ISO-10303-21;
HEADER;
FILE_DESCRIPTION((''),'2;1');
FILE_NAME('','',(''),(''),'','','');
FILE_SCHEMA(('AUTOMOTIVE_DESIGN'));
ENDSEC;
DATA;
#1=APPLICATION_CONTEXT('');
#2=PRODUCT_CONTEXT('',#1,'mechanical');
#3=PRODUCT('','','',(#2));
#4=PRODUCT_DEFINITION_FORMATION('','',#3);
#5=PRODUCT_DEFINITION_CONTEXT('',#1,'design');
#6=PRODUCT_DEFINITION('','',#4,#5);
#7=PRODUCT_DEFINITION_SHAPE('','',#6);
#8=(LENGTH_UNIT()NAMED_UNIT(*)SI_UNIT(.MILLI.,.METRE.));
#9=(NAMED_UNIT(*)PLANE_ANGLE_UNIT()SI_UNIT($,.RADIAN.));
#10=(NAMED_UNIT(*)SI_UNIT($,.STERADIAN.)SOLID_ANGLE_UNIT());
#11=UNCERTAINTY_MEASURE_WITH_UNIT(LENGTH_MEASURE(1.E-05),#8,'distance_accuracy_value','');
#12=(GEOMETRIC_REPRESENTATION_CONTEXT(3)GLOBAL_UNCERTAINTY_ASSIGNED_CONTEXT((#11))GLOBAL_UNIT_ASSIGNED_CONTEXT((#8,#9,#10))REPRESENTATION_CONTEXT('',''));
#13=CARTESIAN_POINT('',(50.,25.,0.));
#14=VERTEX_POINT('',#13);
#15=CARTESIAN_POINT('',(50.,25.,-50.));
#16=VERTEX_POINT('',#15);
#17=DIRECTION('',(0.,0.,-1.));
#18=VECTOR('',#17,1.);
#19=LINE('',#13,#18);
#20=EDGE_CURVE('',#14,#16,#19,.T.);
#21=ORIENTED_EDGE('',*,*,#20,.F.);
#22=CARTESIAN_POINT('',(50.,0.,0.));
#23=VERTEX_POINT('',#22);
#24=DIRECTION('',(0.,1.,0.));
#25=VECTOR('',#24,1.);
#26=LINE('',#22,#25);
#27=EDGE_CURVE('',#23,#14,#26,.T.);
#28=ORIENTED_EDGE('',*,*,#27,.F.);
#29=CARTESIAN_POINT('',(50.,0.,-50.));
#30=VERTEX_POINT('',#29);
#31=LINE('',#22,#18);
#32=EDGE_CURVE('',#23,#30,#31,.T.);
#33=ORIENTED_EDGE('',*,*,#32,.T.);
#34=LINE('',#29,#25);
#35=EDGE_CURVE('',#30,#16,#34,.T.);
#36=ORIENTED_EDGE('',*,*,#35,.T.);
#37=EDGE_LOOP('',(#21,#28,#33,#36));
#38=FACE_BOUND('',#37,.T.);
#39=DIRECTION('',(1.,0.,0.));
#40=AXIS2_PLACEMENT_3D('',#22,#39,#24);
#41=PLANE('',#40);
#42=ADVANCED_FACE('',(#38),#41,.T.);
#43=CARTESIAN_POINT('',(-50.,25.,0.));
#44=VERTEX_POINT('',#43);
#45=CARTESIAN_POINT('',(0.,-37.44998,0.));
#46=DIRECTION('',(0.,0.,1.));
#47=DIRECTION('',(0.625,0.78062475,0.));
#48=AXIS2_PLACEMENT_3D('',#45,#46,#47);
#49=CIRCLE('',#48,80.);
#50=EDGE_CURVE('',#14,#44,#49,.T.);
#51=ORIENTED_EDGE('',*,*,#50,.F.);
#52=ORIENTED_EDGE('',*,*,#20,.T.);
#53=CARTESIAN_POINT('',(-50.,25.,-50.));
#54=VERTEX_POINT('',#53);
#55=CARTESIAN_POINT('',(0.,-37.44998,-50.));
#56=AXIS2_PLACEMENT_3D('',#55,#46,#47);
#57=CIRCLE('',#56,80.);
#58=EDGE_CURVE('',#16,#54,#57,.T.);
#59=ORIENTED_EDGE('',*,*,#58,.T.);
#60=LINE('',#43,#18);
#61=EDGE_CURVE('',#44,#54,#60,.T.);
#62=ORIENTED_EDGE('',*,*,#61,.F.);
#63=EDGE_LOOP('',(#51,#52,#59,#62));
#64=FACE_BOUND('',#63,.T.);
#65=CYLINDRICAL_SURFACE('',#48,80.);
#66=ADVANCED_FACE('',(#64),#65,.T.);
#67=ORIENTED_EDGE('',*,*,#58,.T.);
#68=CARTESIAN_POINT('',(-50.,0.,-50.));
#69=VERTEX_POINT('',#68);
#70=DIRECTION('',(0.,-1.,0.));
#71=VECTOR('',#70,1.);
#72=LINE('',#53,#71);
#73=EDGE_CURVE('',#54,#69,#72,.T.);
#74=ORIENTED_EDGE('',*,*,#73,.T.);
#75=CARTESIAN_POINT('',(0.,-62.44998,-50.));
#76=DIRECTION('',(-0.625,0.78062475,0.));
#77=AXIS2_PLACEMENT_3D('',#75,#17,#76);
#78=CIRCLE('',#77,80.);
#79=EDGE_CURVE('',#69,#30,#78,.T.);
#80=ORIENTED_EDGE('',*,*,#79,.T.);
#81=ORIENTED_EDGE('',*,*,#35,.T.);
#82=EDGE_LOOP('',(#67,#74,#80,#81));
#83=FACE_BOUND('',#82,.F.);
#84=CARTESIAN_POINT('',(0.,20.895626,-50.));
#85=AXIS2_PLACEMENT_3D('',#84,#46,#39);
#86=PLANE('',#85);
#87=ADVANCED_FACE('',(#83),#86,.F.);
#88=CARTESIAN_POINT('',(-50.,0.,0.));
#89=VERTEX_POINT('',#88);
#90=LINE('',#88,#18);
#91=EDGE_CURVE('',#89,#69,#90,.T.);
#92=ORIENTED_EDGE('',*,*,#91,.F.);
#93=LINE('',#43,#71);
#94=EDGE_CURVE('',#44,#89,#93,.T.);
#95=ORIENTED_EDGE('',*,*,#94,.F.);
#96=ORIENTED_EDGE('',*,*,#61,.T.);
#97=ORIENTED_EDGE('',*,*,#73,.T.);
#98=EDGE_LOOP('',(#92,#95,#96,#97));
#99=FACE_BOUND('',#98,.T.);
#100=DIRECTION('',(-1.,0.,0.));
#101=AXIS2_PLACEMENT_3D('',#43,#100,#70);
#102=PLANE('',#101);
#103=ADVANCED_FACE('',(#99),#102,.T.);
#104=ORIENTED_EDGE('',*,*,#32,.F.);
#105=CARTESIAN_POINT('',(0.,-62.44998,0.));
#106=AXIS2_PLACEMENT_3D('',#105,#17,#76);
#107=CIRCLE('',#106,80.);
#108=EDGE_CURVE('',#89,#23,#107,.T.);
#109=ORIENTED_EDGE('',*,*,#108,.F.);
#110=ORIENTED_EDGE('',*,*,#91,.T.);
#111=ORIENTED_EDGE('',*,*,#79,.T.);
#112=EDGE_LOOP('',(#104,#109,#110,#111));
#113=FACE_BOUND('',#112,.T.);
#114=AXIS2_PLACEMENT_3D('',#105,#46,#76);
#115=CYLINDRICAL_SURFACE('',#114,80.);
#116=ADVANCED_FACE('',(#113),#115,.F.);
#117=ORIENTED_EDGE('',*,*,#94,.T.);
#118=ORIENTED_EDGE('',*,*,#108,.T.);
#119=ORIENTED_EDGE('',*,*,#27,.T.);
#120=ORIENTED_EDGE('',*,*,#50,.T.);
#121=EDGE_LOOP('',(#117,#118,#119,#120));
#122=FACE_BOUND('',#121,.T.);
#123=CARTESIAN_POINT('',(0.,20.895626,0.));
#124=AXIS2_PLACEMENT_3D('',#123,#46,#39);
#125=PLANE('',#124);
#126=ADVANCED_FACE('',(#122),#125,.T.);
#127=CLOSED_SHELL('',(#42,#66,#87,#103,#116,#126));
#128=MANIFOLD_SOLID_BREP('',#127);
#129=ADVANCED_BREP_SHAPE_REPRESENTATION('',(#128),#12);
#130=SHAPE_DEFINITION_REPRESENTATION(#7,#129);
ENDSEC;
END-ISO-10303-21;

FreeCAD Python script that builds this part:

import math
import FreeCAD as App
import Part
import Sketcher
Q = App.Units.Quantity

doc = App.newDocument("Part")
body = doc.addObject("PartDesign::Body", "Body")

sketch1 = doc.addObject("Sketcher::SketchObject", "Sketch")
body.addObject(sketch1)
sketch1.AttachmentSupport = (doc.XY_Plane, [""])
sketch1.MapMode = "FlatFace"
sketch1.addGeometry(Part.ArcOfCircle(Part.Circle(App.Vector(0, -62, 0), App.Vector(0, 0, 1), 80), math.radians(51), math.radians(129)), False)
sketch1.addGeometry(Part.LineSegment(App.Vector(50, 0, 0), App.Vector(50, 25, 0)), False)
sketch1.addGeometry(Part.ArcOfCircle(Part.Circle(App.Vector(0, -37, 0), App.Vector(0, 0, 1), 80), math.radians(51), math.radians(129)), False)
sketch1.addGeometry(Part.LineSegment(App.Vector(-50, 25, 0), App.Vector(-50, 0, 0)), False)
sketch1.addConstraint(Sketcher.Constraint("Coincident", 0, 1, 1, 1))
sketch1.addConstraint(Sketcher.Constraint("Coincident", 1, 2, 2, 1))
sketch1.addConstraint(Sketcher.Constraint("Coincident", 2, 2, 3, 1))
sketch1.addConstraint(Sketcher.Constraint("Coincident", 3, 2, 0, 2))
sketch1.addConstraint(Sketcher.Constraint("Vertical", 1))
sketch1.addConstraint(Sketcher.Constraint("Vertical", 3))
sketch1.addConstraint(Sketcher.Constraint("Equal", 0, 2))
sketch1.addConstraint(Sketcher.Constraint("Symmetric", 0, 1, 3, 2, -1, 1))
sketch1.addConstraint(Sketcher.Constraint("PointOnObject", 0, 3, -2))
sketch1.addConstraint(Sketcher.Constraint("PointOnObject", 2, 3, -2))
sketch1.addConstraint(Sketcher.Constraint("Radius", 0, Q("80 mm")))
sketch1.addConstraint(Sketcher.Constraint("DistanceY", 1, 1, 1, 2, Q("25 mm")))
sketch1.addConstraint(Sketcher.Constraint("DistanceX", -1, 1, 0, 1, Q("50 mm")))
pad1 = doc.addObject("PartDesign::Pad", "Pad")
body.addObject(pad1)
pad1.Profile = sketch1
pad1.Length = 50
pad1.Reversed = True

doc.recompute()
